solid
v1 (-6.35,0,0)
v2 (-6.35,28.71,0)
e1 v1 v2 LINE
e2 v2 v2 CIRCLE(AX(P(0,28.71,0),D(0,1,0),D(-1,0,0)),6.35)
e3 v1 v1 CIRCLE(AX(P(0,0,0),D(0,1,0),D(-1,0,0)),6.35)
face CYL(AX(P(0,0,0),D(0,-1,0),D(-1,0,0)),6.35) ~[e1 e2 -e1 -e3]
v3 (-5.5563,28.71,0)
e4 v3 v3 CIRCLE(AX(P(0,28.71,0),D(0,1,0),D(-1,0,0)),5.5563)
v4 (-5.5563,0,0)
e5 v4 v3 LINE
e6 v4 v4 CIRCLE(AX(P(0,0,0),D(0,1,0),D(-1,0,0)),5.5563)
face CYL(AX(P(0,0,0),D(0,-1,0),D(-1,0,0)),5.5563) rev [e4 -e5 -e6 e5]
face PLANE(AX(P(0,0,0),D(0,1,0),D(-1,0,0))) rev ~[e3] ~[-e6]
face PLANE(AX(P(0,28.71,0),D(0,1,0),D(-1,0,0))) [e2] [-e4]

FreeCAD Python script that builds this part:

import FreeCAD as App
import Part
import Sketcher

V = App.Vector
Q = App.Units.Quantity

doc = App.newDocument("Part")
body = doc.addObject("PartDesign::Body", "Body")

sketch1 = body.newObject("Sketcher::SketchObject", "Sketch")
sketch1.AttachmentSupport = (doc.getObject("XZ_Plane"), [""])
sketch1.MapMode = "FlatFace"
sketch1.addGeometry([
    Part.Circle(V(0, 0, 0), V(0, 0, 1), 6),
    Part.Circle(V(0, 0, 0), V(0, 0, 1), 6),
], False)
sketch1.addConstraint([
    Sketcher.Constraint("Coincident", 0, 3, -1, 1),
    Sketcher.Constraint("Coincident", 1, 3, -1, 1),
    Sketcher.Constraint("Diameter", 0, Q("0.5 in")),
    Sketcher.Constraint("Diameter", 1, Q("0.4375 in")),
])
pad1 = body.newObject("PartDesign::Pad", "Pad")
pad1.Profile = sketch1
pad1.Length = 28.71
pad1.Reversed = True

doc.recompute()
